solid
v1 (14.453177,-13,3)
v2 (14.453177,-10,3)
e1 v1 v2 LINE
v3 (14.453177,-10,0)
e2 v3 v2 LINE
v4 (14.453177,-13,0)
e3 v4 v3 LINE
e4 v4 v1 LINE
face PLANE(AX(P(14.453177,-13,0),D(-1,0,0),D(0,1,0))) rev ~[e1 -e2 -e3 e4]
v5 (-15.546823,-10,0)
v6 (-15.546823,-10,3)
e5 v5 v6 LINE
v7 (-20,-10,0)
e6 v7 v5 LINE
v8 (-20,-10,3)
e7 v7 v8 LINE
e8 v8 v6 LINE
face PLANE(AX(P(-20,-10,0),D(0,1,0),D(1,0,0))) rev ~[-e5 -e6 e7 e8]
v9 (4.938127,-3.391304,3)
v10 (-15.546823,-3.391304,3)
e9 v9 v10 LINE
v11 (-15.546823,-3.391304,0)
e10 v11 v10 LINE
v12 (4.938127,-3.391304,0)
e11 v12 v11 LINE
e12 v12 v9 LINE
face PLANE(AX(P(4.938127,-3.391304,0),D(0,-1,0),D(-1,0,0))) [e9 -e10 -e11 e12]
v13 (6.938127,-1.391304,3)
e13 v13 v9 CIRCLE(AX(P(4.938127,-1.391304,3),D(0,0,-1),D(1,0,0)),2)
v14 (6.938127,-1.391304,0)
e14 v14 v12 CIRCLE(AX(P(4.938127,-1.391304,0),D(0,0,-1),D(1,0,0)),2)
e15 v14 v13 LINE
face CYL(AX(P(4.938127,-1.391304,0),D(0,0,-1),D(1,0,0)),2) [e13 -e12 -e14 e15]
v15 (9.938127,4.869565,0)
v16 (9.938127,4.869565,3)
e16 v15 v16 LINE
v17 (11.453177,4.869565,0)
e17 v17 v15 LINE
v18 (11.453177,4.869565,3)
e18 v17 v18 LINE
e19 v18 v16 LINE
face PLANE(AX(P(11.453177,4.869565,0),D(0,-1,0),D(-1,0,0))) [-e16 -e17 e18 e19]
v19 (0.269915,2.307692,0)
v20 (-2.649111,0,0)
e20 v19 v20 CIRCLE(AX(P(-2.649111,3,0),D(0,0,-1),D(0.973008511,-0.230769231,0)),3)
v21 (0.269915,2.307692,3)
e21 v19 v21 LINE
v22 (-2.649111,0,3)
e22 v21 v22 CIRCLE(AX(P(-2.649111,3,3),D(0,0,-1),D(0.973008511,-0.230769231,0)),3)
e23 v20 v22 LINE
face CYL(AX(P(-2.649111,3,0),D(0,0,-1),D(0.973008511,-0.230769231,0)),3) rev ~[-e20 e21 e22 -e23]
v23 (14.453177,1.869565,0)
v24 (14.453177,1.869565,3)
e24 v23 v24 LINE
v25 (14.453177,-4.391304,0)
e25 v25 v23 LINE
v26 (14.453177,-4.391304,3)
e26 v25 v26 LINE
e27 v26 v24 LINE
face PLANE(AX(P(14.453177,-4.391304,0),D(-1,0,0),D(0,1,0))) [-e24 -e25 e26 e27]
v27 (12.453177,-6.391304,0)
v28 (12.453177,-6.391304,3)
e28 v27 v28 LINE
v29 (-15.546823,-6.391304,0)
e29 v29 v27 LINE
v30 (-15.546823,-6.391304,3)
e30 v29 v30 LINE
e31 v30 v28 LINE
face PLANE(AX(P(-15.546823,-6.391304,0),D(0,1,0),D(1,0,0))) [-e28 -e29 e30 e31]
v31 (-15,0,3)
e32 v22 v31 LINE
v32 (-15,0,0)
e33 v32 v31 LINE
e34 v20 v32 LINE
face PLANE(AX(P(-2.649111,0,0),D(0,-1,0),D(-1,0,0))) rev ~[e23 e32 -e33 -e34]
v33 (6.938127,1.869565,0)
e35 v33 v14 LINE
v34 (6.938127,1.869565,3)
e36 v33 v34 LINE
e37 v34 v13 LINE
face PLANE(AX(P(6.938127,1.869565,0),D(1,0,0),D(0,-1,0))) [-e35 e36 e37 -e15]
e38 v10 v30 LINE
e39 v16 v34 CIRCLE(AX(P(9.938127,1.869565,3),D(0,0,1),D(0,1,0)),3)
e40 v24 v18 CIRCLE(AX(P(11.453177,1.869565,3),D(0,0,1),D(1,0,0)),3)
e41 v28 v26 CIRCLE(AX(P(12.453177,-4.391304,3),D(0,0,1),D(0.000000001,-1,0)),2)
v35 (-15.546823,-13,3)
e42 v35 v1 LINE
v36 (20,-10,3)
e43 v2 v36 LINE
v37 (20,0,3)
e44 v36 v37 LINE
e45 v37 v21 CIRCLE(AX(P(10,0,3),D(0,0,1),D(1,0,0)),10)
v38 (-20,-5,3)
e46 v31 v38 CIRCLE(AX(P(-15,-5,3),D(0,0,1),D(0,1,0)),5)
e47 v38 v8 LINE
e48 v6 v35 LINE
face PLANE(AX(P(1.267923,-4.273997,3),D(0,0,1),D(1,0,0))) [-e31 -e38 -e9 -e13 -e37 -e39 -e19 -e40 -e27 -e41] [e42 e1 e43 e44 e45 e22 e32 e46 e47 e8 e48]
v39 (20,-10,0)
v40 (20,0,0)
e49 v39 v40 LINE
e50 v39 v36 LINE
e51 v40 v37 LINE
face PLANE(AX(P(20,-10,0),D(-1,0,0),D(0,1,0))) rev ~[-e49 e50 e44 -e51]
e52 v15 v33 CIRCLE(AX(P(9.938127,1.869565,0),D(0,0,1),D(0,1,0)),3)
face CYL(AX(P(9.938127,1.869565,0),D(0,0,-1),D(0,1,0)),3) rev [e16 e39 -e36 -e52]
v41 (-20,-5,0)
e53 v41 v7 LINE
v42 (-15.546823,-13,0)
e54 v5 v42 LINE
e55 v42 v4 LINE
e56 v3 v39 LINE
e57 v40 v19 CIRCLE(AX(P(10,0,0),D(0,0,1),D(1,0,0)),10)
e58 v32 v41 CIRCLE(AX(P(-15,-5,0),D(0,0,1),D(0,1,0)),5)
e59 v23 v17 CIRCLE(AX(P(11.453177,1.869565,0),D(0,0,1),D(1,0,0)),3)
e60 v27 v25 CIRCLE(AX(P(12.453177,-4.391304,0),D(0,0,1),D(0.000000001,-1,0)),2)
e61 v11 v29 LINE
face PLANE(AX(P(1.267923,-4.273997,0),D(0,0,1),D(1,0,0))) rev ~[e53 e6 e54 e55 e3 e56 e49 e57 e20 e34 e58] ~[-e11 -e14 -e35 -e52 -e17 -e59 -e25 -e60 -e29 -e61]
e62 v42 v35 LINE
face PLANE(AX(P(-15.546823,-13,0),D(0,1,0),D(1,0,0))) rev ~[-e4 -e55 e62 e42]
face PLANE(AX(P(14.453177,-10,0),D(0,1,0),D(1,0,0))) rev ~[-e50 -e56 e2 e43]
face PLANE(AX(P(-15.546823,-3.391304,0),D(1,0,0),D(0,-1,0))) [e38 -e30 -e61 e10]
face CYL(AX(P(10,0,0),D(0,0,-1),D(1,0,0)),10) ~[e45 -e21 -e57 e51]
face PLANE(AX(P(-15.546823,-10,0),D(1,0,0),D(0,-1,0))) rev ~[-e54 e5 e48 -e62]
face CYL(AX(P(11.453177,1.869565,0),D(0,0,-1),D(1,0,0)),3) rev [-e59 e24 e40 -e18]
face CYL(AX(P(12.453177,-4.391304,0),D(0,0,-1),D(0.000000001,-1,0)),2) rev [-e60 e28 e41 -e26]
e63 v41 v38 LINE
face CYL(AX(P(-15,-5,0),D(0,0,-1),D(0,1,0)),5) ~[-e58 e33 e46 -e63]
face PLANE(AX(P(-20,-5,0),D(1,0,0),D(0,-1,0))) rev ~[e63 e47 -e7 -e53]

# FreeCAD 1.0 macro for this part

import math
import FreeCAD as App
import Part
import Sketcher

V = App.Vector
Q = App.Units.Quantity

doc = App.newDocument("Part")
body = doc.addObject("PartDesign::Body", "Body")

# Sketch on XY plane
sketch1 = doc.addObject("Sketcher::SketchObject", "Sketch")
body.addObject(sketch1)
sketch1.AttachmentSupport = (doc.XY_Plane, [""])
sketch1.MapMode = "FlatFace"
sketch1.addGeometry(Part.LineSegment(V(-2.649111, 0, 0), V(-15, 0, 0)), False)
sketch1.addGeometry(Part.ArcOfCircle(Part.Circle(V(-15, -5, 0), V(0, 0, 1), 5), math.radians(90), math.radians(180)), False)
sketch1.addGeometry(Part.LineSegment(V(-20, -5, 0), V(-20, -10, 0)), False)
sketch1.addGeometry(Part.LineSegment(V(-20, -10, 0), V(-15.546823, -10, 0)), False)
sketch1.addGeometry(Part.LineSegment(V(-15.546823, -10, 0), V(-15.546823, -13, 0)), False)
sketch1.addGeometry(Part.LineSegment(V(-15.546823, -13, 0), V(14.453177, -13, 0)), False)
sketch1.addGeometry(Part.LineSegment(V(14.453177, -13, 0), V(14.453177, -10, 0)), False)
sketch1.addGeometry(Part.LineSegment(V(14.453177, -10, 0), V(20, -10, 0)), False)
sketch1.addGeometry(Part.LineSegment(V(20, -10, 0), V(20, 0, 0)), False)
sketch1.addGeometry(Part.ArcOfCircle(Part.Circle(V(10, 0, 0), V(0, 0, 1), 10), math.radians(0), math.radians(166.657636)), False)
sketch1.addGeometry(Part.ArcOfCircle(Part.Circle(V(-2.649111, 3, 0), V(0, 0, 1), 3), math.radians(-90), math.radians(-13.342364)), False)
sketch1.addGeometry(Part.LineSegment(V(12.453177, -6.391304, 0), V(-15.546823, -6.391304, 0)), False)
sketch1.addGeometry(Part.LineSegment(V(-15.546823, -6.391304, 0), V(-15.546823, -3.391304, 0)), False)
sketch1.addGeometry(Part.LineSegment(V(-15.546823, -3.391304, 0), V(4.938127, -3.391304, 0)), False)
sketch1.addGeometry(Part.ArcOfCircle(Part.Circle(V(4.938127, -1.391304, 0), V(0, 0, 1), 2), math.radians(-90), math.radians(0)), False)
sketch1.addGeometry(Part.LineSegment(V(6.938127, -1.391304, 0), V(6.938127, 1.869565, 0)), False)
sketch1.addGeometry(Part.ArcOfCircle(Part.Circle(V(9.938127, 1.869565, 0), V(0, 0, 1), 3), math.radians(90), math.radians(180)), False)
sketch1.addGeometry(Part.LineSegment(V(9.938127, 4.869565, 0), V(11.453177, 4.869565, 0)), False)
sketch1.addGeometry(Part.ArcOfCircle(Part.Circle(V(11.453177, 1.869565, 0), V(0, 0, 1), 3), math.radians(0), math.radians(90)), False)
sketch1.addGeometry(Part.LineSegment(V(14.453177, 1.869565, 0), V(14.453177, -4.391304, 0)), False)
sketch1.addGeometry(Part.ArcOfCircle(Part.Circle(V(12.453177, -4.391304, 0), V(0, 0, 1), 2), math.radians(-90), math.radians(0)), False)
sketch1.addConstraint(Sketcher.Constraint("Tangent", 0, 2, 1, 1))
sketch1.addConstraint(Sketcher.Constraint("Tangent", 1, 2, 2, 1))
sketch1.addConstraint(Sketcher.Constraint("Coincident", 2, 2, 3, 1))
sketch1.addConstraint(Sketcher.Constraint("Coincident", 3, 2, 4, 1))
sketch1.addConstraint(Sketcher.Constraint("Coincident", 4, 2, 5, 1))
sketch1.addConstraint(Sketcher.Constraint("Coincident", 5, 2, 6, 1))
sketch1.addConstraint(Sketcher.Constraint("Coincident", 6, 2, 7, 1))
sketch1.addConstraint(Sketcher.Constraint("Coincident", 7, 2, 8, 1))
sketch1.addConstraint(Sketcher.Constraint("Tangent", 8, 2, 9, 1))
sketch1.addConstraint(Sketcher.Constraint("Tangent", 9, 2, 10, 2))
sketch1.addConstraint(Sketcher.Constraint("Tangent", 10, 1, 0, 1))
sketch1.addConstraint(Sketcher.Constraint("Coincident", 11, 2, 12, 1))
sketch1.addConstraint(Sketcher.Constraint("Coincident", 12, 2, 13, 1))
sketch1.addConstraint(Sketcher.Constraint("Tangent", 13, 2, 14, 1))
sketch1.addConstraint(Sketcher.Constraint("Tangent", 14, 2, 15, 1))
sketch1.addConstraint(Sketcher.Constraint("Tangent", 15, 2, 16, 2))
sketch1.addConstraint(Sketcher.Constraint("Tangent", 16, 1, 17, 1))
sketch1.addConstraint(Sketcher.Constraint("Tangent", 17, 2, 18, 2))
sketch1.addConstraint(Sketcher.Constraint("Tangent", 18, 1, 19, 1))
sketch1.addConstraint(Sketcher.Constraint("Tangent", 19, 2, 20, 2))
sketch1.addConstraint(Sketcher.Constraint("Tangent", 20, 1, 11, 1))
sketch1.addConstraint(Sketcher.Constraint("Horizontal", 0))
sketch1.addConstraint(Sketcher.Constraint("Vertical", 2))
sketch1.addConstraint(Sketcher.Constraint("Horizontal", 3))
sketch1.addConstraint(Sketcher.Constraint("Vertical", 4))
sketch1.addConstraint(Sketcher.Constraint("Horizontal", 5))
sketch1.addConstraint(Sketcher.Constraint("Vertical", 6))
sketch1.addConstraint(Sketcher.Constraint("Horizontal", 7))
sketch1.addConstraint(Sketcher.Constraint("Vertical", 8))
sketch1.addConstraint(Sketcher.Constraint("Horizontal", 11))
sketch1.addConstraint(Sketcher.Constraint("Vertical", 12))
sketch1.addConstraint(Sketcher.Constraint("Horizontal", 13))
sketch1.addConstraint(Sketcher.Constraint("Vertical", 15))
sketch1.addConstraint(Sketcher.Constraint("Horizontal", 17))
sketch1.addConstraint(Sketcher.Constraint("Vertical", 19))
sketch1.addConstraint(Sketcher.Constraint("Equal", 10, 16))
sketch1.addConstraint(Sketcher.Constraint("Equal", 16, 18))
sketch1.addConstraint(Sketcher.Constraint("Equal", 14, 20))
sketch1.addConstraint(Sketcher.Constraint("Symmetric", 2, 2, 7, 2, -2))
sketch1.addConstraint(Sketcher.Constraint("PointOnObject", 9, 3, -1))
sketch1.addConstraint(Sketcher.Constraint("PointOnObject", 0, 2, -1))
sketch1.addConstraint(Sketcher.Constraint("Vertical", 4, 2, 11, 2))
sketch1.addConstraint(Sketcher.Constraint("Vertical", 6, 2, 18, 1))
sketch1.addConstraint(Sketcher.Constraint("Equal", 6, 12))
sketch1.addConstraint(Sketcher.Constraint("Radius", 1, Q("5 mm")))
sketch1.addConstraint(Sketcher.Constraint("Radius", 9, Q("10 mm")))
sketch1.addConstraint(Sketcher.Constraint("Radius", 10, Q("3 mm")))
sketch1.addConstraint(Sketcher.Constraint("Radius", 14, Q("2 mm")))
sketch1.addConstraint(Sketcher.Constraint("DistanceX", 5, 1, 5, 2, Q("30 mm")))
sketch1.addConstraint(Sketcher.Constraint("DistanceY", 2, 2, 2, 1, Q("5 mm")))
sketch1.addConstraint(Sketcher.Constraint("DistanceY", 4, 2, 4, 1, Q("3 mm")))
sketch1.addConstraint(Sketcher.Constraint("DistanceX", 1, 3, -1, 1, Q("15 mm")))
sketch1.addConstraint(Sketcher.Constraint("DistanceX", 13, 1, 13, 2, Q("20.48495 mm")))
sketch1.addConstraint(Sketcher.Constraint("DistanceY", 15, 1, 15, 2, Q("3.26087 mm")))
sketch1.addConstraint(Sketcher.Constraint("DistanceX", 3, 1, 3, 2, Q("4.453177 mm")))
sketch1.addConstraint(Sketcher.Constraint("DistanceY", 14, 3, -1, 1, Q("1.391304 mm")))
pad1 = doc.addObject("PartDesign::Pad", "Pad")
body.addObject(pad1)
pad1.Profile = sketch1
pad1.Length = 3

doc.recompute()
